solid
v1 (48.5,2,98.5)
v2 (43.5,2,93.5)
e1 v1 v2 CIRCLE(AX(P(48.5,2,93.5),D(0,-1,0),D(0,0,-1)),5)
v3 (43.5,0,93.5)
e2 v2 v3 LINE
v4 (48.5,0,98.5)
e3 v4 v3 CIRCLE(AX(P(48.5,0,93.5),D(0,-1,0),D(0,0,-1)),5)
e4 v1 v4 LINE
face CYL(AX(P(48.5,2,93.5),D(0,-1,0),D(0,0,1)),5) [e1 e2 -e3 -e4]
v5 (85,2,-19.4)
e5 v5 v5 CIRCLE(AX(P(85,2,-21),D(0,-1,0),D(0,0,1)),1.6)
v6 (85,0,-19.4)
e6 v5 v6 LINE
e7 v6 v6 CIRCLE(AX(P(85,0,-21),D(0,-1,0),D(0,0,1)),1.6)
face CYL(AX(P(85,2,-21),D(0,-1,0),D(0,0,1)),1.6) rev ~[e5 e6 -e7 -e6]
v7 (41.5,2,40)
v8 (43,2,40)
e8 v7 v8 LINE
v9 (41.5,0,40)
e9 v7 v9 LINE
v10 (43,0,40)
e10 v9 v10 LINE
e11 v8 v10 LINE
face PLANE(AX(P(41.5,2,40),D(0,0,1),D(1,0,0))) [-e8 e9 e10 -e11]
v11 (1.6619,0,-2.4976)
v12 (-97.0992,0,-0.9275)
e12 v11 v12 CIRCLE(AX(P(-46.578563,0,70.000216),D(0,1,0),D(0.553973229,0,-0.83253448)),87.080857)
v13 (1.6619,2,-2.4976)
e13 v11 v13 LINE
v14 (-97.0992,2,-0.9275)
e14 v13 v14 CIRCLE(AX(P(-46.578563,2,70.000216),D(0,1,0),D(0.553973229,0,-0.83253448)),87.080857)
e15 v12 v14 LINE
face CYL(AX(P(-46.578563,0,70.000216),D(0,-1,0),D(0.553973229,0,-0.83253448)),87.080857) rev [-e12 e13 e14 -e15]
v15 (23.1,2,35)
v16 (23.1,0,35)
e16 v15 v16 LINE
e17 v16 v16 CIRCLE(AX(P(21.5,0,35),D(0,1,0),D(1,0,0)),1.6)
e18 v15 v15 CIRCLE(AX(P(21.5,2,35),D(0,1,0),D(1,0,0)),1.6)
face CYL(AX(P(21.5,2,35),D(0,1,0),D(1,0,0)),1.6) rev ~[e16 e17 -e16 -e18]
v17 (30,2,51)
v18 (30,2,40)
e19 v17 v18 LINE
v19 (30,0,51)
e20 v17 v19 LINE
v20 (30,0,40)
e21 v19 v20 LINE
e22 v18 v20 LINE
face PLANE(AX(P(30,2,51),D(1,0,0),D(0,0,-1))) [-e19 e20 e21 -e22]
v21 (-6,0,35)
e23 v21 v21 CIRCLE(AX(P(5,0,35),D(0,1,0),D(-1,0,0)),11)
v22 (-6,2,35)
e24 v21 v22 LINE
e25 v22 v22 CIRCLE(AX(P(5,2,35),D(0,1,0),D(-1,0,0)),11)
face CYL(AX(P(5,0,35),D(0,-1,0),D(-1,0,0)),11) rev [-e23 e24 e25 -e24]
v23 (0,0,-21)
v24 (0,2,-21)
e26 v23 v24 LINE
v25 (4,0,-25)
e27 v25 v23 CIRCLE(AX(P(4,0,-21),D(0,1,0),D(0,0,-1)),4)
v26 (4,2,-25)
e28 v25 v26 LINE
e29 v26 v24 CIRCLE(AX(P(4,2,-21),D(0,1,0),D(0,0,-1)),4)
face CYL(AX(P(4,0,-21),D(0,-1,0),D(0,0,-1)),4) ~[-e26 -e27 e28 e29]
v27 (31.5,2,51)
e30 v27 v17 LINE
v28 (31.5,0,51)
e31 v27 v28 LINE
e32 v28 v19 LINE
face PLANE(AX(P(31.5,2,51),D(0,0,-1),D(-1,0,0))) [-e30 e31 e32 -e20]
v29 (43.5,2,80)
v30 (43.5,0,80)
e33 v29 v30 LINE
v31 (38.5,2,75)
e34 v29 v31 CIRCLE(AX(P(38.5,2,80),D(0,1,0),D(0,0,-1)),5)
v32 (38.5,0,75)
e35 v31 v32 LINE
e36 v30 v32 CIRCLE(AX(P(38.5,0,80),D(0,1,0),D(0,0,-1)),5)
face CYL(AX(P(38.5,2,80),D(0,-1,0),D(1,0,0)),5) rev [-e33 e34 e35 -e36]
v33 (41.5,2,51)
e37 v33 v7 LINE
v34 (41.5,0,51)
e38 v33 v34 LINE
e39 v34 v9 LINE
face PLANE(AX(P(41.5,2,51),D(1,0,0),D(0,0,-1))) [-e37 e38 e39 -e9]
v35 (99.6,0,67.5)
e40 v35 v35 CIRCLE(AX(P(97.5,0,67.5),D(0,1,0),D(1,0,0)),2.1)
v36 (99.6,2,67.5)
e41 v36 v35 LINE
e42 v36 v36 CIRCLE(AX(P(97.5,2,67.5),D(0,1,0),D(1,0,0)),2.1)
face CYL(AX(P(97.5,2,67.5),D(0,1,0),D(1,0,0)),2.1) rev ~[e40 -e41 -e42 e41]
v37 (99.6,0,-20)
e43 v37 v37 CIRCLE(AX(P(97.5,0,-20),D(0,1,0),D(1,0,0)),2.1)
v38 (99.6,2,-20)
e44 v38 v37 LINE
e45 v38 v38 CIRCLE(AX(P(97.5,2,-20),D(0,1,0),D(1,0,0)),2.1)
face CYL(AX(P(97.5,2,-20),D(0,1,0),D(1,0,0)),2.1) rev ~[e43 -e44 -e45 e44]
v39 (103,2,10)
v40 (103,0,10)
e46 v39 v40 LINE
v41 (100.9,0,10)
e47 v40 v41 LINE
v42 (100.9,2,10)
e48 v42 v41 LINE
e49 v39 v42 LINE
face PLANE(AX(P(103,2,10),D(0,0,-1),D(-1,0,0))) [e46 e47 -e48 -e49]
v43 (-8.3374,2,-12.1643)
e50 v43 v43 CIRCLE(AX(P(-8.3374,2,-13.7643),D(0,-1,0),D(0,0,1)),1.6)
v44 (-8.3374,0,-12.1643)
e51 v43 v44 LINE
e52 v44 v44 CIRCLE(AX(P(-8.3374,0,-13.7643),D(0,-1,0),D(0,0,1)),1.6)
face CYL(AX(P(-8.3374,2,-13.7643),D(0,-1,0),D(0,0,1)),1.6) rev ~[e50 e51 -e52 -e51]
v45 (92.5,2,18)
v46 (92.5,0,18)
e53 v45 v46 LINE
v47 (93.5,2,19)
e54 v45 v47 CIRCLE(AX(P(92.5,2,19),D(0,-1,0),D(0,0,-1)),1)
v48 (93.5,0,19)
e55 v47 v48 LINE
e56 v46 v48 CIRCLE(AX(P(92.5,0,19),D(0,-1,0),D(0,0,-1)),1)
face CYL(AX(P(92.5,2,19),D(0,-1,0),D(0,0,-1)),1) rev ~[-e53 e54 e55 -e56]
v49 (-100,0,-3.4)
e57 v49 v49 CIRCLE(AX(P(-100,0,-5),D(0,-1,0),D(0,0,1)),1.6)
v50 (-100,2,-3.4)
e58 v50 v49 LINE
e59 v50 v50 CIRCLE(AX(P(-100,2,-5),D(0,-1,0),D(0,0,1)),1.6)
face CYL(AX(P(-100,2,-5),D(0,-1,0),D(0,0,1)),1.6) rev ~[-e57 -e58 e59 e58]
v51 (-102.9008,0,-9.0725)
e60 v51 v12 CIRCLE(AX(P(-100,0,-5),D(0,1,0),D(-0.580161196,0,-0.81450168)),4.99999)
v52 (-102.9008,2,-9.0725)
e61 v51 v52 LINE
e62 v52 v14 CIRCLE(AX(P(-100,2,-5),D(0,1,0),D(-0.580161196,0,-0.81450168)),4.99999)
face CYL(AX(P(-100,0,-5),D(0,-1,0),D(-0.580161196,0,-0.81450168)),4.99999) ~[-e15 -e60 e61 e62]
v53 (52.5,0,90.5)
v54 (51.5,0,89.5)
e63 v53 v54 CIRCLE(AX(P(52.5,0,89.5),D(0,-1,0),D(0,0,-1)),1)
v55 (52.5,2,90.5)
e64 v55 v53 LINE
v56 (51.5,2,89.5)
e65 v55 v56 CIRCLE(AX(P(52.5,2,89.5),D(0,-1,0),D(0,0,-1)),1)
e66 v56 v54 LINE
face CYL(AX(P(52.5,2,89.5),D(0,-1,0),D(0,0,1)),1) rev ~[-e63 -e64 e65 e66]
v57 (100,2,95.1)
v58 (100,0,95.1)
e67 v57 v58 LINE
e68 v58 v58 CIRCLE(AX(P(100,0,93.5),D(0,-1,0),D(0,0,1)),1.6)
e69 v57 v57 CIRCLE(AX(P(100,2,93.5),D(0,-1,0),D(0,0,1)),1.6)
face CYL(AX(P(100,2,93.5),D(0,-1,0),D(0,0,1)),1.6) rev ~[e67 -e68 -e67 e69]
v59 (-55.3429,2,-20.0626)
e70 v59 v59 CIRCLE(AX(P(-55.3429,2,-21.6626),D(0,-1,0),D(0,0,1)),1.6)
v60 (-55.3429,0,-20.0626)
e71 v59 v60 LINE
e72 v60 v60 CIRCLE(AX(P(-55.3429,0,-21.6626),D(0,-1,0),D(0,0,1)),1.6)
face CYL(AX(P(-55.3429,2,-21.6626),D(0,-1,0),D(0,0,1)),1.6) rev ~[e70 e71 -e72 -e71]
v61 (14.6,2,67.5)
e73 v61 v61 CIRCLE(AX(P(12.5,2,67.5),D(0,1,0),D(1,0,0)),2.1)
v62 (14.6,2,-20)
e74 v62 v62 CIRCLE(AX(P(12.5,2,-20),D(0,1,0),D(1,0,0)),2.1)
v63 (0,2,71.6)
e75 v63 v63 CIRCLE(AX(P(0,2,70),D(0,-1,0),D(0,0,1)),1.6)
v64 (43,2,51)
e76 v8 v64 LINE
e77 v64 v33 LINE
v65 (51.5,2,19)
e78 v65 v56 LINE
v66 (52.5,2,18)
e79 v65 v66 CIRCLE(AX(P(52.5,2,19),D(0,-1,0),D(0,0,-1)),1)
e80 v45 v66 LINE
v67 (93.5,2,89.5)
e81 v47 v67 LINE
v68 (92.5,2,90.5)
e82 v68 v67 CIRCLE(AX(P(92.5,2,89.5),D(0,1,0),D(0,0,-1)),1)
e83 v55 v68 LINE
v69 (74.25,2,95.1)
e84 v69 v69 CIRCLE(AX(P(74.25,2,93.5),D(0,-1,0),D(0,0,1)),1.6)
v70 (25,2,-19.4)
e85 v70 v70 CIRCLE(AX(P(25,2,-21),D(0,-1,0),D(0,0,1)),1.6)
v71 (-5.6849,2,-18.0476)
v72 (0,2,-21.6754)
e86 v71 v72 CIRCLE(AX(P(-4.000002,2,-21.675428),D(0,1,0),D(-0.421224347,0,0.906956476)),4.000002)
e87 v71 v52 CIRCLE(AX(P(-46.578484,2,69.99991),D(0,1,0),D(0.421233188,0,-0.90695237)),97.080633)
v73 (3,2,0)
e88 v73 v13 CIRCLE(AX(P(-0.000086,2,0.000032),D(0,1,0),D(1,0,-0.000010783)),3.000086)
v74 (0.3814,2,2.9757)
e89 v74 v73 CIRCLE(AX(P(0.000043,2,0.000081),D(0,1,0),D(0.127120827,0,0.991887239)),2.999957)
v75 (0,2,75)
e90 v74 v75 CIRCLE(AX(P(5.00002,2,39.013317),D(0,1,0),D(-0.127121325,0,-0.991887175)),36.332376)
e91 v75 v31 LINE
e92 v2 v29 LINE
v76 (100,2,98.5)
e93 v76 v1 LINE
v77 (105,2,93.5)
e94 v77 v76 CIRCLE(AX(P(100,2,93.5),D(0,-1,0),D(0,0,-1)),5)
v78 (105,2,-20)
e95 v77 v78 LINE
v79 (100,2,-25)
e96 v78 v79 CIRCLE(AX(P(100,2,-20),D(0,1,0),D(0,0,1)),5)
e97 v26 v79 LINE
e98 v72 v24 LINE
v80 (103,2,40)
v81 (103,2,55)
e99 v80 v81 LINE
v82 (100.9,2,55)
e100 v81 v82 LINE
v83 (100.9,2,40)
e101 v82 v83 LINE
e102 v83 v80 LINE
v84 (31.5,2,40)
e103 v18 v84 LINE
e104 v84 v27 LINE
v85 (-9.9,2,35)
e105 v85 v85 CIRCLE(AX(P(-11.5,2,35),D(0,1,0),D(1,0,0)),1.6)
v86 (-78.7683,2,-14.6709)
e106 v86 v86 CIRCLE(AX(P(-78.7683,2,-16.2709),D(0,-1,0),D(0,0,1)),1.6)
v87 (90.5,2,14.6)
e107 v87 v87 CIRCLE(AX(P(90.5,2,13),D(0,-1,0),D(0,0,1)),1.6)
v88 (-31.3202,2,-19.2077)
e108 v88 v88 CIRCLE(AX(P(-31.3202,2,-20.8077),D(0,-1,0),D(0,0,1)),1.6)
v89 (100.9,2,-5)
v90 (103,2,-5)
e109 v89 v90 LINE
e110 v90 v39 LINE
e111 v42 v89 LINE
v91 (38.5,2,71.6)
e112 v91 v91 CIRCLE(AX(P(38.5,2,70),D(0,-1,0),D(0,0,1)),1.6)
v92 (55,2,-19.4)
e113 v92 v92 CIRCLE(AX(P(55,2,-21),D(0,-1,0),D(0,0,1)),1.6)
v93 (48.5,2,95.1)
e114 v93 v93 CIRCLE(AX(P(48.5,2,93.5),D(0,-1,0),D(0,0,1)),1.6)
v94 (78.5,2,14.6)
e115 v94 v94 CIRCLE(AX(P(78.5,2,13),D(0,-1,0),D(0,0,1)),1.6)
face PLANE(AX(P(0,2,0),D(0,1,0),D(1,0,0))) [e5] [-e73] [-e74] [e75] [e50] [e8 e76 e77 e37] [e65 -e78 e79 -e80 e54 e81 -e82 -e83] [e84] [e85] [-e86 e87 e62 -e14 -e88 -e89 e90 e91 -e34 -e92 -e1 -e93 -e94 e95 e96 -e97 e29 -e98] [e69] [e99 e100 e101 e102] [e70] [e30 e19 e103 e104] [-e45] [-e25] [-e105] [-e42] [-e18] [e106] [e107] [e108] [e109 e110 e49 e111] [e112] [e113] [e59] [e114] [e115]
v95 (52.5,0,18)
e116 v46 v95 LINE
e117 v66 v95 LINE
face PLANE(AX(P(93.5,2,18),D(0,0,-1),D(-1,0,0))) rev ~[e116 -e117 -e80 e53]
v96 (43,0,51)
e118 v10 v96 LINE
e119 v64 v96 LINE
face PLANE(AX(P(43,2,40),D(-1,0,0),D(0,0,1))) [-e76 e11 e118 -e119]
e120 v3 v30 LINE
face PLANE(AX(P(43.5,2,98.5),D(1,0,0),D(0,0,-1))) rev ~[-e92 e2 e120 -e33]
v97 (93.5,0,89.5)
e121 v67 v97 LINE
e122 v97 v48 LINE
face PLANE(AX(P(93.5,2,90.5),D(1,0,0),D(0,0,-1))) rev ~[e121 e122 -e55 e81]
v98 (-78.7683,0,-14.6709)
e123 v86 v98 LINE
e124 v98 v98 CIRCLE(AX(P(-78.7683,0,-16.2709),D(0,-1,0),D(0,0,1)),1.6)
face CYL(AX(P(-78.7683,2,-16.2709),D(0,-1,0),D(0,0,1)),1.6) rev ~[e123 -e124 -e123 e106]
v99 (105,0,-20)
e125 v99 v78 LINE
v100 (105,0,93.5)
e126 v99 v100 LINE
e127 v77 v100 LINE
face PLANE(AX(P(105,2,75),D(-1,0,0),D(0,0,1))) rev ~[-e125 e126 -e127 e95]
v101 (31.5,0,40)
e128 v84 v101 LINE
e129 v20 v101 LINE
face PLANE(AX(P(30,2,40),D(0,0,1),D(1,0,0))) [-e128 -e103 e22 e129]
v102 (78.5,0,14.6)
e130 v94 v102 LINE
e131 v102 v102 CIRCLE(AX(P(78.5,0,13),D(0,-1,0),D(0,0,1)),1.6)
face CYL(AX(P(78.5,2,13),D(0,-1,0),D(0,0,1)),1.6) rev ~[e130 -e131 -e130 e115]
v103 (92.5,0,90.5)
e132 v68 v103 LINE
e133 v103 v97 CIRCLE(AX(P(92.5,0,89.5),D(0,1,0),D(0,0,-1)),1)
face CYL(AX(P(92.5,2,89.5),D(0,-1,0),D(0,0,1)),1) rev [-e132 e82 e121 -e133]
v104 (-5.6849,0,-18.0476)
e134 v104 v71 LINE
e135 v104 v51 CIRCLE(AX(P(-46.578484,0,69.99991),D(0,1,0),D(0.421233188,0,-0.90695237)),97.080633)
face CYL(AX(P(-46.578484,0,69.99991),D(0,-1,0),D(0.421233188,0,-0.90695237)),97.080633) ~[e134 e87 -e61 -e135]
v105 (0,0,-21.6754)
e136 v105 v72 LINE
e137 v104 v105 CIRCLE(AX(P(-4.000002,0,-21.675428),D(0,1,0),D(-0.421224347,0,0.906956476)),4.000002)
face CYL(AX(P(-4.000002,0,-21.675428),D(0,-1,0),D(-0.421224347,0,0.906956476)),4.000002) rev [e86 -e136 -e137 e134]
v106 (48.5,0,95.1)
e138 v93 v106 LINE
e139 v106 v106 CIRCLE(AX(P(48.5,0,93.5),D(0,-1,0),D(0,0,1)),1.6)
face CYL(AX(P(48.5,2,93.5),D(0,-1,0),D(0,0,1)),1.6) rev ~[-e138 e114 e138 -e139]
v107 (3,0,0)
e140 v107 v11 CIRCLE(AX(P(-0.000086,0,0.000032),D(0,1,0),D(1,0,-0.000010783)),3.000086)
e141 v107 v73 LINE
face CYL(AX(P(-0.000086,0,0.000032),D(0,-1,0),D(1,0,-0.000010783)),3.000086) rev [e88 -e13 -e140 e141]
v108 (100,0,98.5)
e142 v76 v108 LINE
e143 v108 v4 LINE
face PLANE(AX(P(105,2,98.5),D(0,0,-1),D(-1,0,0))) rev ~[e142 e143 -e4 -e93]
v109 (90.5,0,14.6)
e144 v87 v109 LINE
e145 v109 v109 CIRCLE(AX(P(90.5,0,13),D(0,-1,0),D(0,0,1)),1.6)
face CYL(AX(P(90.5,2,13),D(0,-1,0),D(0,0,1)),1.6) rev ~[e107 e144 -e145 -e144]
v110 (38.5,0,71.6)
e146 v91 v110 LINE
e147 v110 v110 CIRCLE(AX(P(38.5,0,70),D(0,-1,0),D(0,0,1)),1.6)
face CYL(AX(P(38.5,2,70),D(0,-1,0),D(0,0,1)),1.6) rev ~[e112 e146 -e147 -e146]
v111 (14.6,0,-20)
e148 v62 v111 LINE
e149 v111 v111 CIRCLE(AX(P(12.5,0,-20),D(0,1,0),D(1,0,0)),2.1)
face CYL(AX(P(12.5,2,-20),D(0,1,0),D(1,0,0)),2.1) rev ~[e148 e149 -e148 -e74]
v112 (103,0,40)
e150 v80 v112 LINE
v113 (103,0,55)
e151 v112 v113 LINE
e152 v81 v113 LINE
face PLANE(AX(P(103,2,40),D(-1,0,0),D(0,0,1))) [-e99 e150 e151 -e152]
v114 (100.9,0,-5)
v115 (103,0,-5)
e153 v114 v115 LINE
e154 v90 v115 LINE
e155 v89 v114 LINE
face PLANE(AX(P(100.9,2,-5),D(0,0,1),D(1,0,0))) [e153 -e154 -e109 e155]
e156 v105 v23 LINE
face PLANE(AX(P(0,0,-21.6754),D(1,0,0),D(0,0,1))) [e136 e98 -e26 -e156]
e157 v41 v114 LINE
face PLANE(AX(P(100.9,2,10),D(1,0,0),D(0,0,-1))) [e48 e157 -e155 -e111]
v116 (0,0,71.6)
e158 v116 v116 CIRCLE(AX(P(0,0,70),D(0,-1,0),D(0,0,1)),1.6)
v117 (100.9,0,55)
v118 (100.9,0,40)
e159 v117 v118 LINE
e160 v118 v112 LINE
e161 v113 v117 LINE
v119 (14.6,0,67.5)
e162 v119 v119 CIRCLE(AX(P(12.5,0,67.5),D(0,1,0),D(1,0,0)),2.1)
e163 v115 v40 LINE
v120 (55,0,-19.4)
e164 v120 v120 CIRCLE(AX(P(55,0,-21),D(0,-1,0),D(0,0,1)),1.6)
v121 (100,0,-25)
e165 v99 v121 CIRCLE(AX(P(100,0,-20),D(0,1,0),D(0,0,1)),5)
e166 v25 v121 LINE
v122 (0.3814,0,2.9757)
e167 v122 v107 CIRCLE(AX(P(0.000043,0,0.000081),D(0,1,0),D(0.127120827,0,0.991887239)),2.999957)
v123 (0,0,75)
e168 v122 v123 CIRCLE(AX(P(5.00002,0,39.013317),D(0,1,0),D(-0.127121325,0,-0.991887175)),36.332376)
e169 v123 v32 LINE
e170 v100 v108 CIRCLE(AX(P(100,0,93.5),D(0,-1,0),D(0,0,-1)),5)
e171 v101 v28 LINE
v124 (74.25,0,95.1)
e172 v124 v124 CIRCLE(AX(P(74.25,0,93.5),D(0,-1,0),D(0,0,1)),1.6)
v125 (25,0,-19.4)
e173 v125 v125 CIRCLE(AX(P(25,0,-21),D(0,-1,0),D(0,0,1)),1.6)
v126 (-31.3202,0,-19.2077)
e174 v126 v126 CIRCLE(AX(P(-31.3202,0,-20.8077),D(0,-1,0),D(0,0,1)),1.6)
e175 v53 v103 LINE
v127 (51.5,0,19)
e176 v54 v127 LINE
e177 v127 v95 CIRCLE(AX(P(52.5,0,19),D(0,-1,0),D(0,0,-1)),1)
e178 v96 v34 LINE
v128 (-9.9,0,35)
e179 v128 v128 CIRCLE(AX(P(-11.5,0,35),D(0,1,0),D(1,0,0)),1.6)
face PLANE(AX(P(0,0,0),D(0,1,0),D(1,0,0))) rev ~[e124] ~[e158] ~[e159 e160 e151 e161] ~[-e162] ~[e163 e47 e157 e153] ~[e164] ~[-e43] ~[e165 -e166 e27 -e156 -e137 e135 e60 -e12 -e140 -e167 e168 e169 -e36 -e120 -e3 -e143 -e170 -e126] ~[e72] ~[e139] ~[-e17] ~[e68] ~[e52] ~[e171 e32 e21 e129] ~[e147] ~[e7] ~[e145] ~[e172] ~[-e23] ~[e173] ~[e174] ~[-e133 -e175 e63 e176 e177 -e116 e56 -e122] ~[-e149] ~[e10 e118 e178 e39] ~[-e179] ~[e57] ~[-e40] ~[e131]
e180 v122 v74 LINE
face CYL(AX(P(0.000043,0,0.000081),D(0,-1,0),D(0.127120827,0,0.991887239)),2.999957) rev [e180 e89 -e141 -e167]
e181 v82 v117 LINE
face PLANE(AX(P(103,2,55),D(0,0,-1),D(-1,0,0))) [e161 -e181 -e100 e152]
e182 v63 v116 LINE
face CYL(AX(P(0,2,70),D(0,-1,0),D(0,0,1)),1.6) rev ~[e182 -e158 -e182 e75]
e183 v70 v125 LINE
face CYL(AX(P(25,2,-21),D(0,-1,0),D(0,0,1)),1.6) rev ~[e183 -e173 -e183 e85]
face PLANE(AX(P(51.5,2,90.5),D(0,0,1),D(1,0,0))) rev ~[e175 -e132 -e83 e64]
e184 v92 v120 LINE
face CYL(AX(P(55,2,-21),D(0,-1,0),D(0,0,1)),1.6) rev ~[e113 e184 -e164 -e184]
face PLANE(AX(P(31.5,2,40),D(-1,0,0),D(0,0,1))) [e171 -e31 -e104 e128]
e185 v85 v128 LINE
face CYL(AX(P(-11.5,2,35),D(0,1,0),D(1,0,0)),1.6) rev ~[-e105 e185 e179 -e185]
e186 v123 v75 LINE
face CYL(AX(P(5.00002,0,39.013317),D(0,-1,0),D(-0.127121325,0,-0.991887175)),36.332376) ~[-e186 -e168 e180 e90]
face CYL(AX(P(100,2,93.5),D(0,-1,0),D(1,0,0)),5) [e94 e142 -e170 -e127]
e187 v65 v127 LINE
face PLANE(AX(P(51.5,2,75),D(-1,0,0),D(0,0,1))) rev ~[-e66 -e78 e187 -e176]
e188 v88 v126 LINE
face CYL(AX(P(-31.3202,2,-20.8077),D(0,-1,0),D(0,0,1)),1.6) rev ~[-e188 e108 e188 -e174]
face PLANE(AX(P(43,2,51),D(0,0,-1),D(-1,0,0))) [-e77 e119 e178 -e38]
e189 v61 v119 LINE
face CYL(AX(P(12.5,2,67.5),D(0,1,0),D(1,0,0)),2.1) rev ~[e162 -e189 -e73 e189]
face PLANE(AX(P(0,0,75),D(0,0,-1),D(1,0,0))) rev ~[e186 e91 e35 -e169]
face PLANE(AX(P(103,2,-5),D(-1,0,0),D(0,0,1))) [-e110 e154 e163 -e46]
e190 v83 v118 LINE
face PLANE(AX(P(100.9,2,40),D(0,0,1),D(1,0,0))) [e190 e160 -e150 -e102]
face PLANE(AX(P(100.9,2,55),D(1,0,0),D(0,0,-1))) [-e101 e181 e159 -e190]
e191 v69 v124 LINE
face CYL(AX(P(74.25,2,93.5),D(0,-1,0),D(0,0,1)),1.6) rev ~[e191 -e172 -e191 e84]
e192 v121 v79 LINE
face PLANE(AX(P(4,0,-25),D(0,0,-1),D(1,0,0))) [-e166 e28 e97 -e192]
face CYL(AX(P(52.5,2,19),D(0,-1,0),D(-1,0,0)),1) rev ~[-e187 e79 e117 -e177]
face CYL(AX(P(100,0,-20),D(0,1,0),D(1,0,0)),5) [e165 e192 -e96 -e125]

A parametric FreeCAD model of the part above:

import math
import FreeCAD as App
import Part
import Sketcher
from FreeCAD import Vector


def edges_at(feature, points):
    """Names of the edges that pass closest to the given points."""
    edges = feature.Shape.Edges
    near = lambda p: min(range(len(edges)), key=lambda i: edges[i].distToShape(Part.Vertex(*p))[0])
    return sorted({f"Edge{near(p) + 1}" for p in points})

doc = App.newDocument("Part")
params = doc.addObject("Spreadsheet::Sheet", "Params")
for row, (alias, value) in enumerate([
    ("sketch1_diameter", "22 mm"),
    ("sketch1_radius", "3 mm"),
    ("sketch1_radius2", "4 mm"),
    ("sketch1_radius3", "5 mm"),
    ("sketch1_width", "105 mm"),
    ("pad1_length", "2 mm"),
    ("sketch2_diameter", "4.2 mm"),
    ("pocket1_length", "2 mm"),
    ("sketch3_height", "15 mm"),
    ("sketch3_width", "2.1 mm"),
    ("pocket2_length", "2 mm"),
    ("sketch4_diameter", "3.2 mm"),
    ("fillet_radius", "5 mm"),
    ("sketch5_width", "8 mm"),
    ("sketch5_width2", "42 mm"),
    ("sketch5_height", "15.5 mm"),
    ("sketch5_width3", "61.5 mm"),
    ("pad2_length", "2 mm"),
    ("sketch6_height", "57 mm"),
    ("sketch6_width", "42 mm"),
    ("pocket4_length", "2 mm"),
    ("fillet2_radius", "5 mm"),
    ("fillet3_radius", "1 mm"),
    ("sketch7_diameter", "3.2 mm"),
    ("hole_diameter", "3.2 mm"),
    ("sketch8_diameter", "3.2 mm"),
    ("hole2_diameter", "3.2 mm"),
    ("sketch9_height", "11 mm"),
    ("sketch9_width", "1.5 mm"),
], start=1):
    params.set(f"A{row}", alias)
    params.set(f"B{row}", "=" + value)
    params.setAlias(f"B{row}", alias)

body = doc.addObject("PartDesign::Body", "Body")

# Sketch on XZ plane
sketch1 = body.newObject("Sketcher::SketchObject", "Sketch")
sketch1.AttachmentSupport = (doc.getObject("XZ_Plane"), [""])
sketch1.MapMode = "FlatFace"
sketch1.addGeometry(Part.ArcOfCircle(Part.Circle(Vector(0, 0, 0), Vector(0, 0, 1), 3), math.radians(0), math.radians(83)), False)
sketch1.addGeometry(Part.ArcOfCircle(Part.Circle(Vector(5, 39, 0), Vector(0, 0, 1), 36.3), math.radians(98), math.radians(263)), False)
sketch1.addGeometry(Part.LineSegment(Vector(0, 75, 0), Vector(105, 75, 0)), False)
sketch1.addGeometry(Part.LineSegment(Vector(105, 75, 0), Vector(105, -25, 0)), False)
sketch1.addGeometry(Part.LineSegment(Vector(105, -25, 0), Vector(4, -25, 0)), False)
sketch1.addGeometry(Part.ArcOfCircle(Part.Circle(Vector(4, -21, 0), Vector(0, 0, 1), 4), math.radians(180), math.radians(270)), False)
sketch1.addGeometry(Part.LineSegment(Vector(0, -21, 0), Vector(0, -21.7, 0)), False)
sketch1.addGeometry(Part.ArcOfCircle(Part.Circle(Vector(-4, -21.7, 0), Vector(0, 0, 1), 4), math.radians(0), math.radians(115)), False)
sketch1.addGeometry(Part.ArcOfCircle(Part.Circle(Vector(-46.6, 70, 0), Vector(0, 0, 1), 97.1), math.radians(-125), math.radians(-65)), False)
sketch1.addGeometry(Part.ArcOfCircle(Part.Circle(Vector(-100, -5, 0), Vector(0, 0, 1), 5), math.radians(55), math.radians(235)), False)
sketch1.addGeometry(Part.ArcOfCircle(Part.Circle(Vector(-46.6, 70, 0), Vector(0, 0, 1), 87.1), math.radians(-125), math.radians(-56)), False)
sketch1.addGeometry(Part.ArcOfCircle(Part.Circle(Vector(0, 0, 0), Vector(0, 0, 1), 3), math.radians(-56), math.radians(0)), False)
sketch1.addGeometry(Part.Circle(Vector(5, 35, 0), Vector(0, 0, 1), 11), False)
sketch1.addConstraint(Sketcher.Constraint("Tangent", 0, 2, 1, 2))
sketch1.addConstraint(Sketcher.Constraint("Coincident", 1, 1, 2, 1))
sketch1.addConstraint(Sketcher.Constraint("Coincident", 2, 2, 3, 1))
sketch1.addConstraint(Sketcher.Constraint("Coincident", 3, 2, 4, 1))
sketch1.addConstraint(Sketcher.Constraint("Tangent", 4, 2, 5, 2))
sketch1.addConstraint(Sketcher.Constraint("Tangent", 5, 1, 6, 1))
sketch1.addConstraint(Sketcher.Constraint("Tangent", 6, 2, 7, 1))
sketch1.addConstraint(Sketcher.Constraint("Tangent", 7, 2, 8, 2))
sketch1.addConstraint(Sketcher.Constraint("Tangent", 8, 1, 9, 2))
sketch1.addConstraint(Sketcher.Constraint("Tangent", 9, 1, 10, 1))
sketch1.addConstraint(Sketcher.Constraint("Tangent", 10, 2, 11, 1))
sketch1.addConstraint(Sketcher.Constraint("Tangent", 11, 2, 0, 1))
sketch1.addConstraint(Sketcher.Constraint("Horizontal", 2))
sketch1.addConstraint(Sketcher.Constraint("Vertical", 3))
sketch1.addConstraint(Sketcher.Constraint("Horizontal", 4))
sketch1.addConstraint(Sketcher.Constraint("Vertical", 6))
sketch1.addConstraint(Sketcher.Constraint("Coincident", 0, 3, -1, 1))
sketch1.addConstraint(Sketcher.Constraint("Coincident", 10, 3, 8, 3))
sketch1.addConstraint(Sketcher.Constraint("Equal", 5, 7))
sketch1.addConstraint(Sketcher.Constraint("Equal", 0, 11))
sketch1.addConstraint(Sketcher.Constraint("PointOnObject", 1, 1, -2))
sketch1.addConstraint(Sketcher.Constraint("PointOnObject", 5, 1, -2))
sketch1.addConstraint(Sketcher.Constraint("PointOnObject", 11, 2, -1))
sketch1.addConstraint(Sketcher.Constraint("Vertical", 1, 3, 12, 3))
sketch1.addConstraint(Sketcher.Constraint("Diameter", 12, 22.0))
sketch1.addConstraint(Sketcher.Constraint("Radius", 0, 3.0))
sketch1.addConstraint(Sketcher.Constraint("Radius", 5, 4.0))
sketch1.addConstraint(Sketcher.Constraint("Radius", 9, 5.0))
sketch1.addConstraint(Sketcher.Constraint("DistanceX", 2, 1, 2, 2, 105.0))
sketch1.addConstraint(Sketcher.Constraint("DistanceY", 3, 2, 3, 1, 100.0))
sketch1.addConstraint(Sketcher.Constraint("DistanceX", -1, 1, 1, 3, 5.0))
sketch1.addConstraint(Sketcher.Constraint("DistanceY", -1, 1, 8, 3, 70.0))
sketch1.addConstraint(Sketcher.Constraint("DistanceX", 9, 3, -1, 1, 100.0))
sketch1.addConstraint(Sketcher.Constraint("DistanceY", 9, 3, -1, 1, 5.0))
sketch1.addConstraint(Sketcher.Constraint("DistanceY", -1, 1, 12, 3, 35.0))
sketch1.addConstraint(Sketcher.Constraint("DistanceY", -1, 1, 1, 1, 75.0))
sketch1.setExpression("Constraints[24]", "Params.sketch1_diameter")
sketch1.setExpression("Constraints[25]", "Params.sketch1_radius")
sketch1.setExpression("Constraints[26]", "Params.sketch1_radius2")
sketch1.setExpression("Constraints[27]", "Params.sketch1_radius3")
sketch1.setExpression("Constraints[28]", "Params.sketch1_width")
pad1 = body.newObject("PartDesign::Pad", "Pad")
pad1.Profile = sketch1
pad1.setExpression("Length", "Params.pad1_length")
pad1.Reversed = True

# Sketch on XZ plane
sketch2 = body.newObject("Sketcher::SketchObject", "Sketch001")
sketch2.AttachmentSupport = (doc.getObject("XZ_Plane"), [""])
sketch2.MapMode = "FlatFace"
sketch2.AttachmentOffset = App.Placement(Vector(0, 0, -2), App.Rotation())
sketch2.addGeometry(Part.Circle(Vector(12.5, -20, 0), Vector(0, 0, 1), 2.1), False)
sketch2.addGeometry(Part.Circle(Vector(97.5, -20, 0), Vector(0, 0, 1), 2.1), False)
sketch2.addGeometry(Part.Circle(Vector(12.5, 67.5, 0), Vector(0, 0, 1), 2.1), False)
sketch2.addGeometry(Part.Circle(Vector(97.5, 67.5, 0), Vector(0, 0, 1), 2.1), False)
sketch2.addConstraint(Sketcher.Constraint("Equal", 0, 1))
sketch2.addConstraint(Sketcher.Constraint("Equal", 1, 2))
sketch2.addConstraint(Sketcher.Constraint("Equal", 2, 3))
sketch2.addConstraint(Sketcher.Constraint("Horizontal", 0, 3, 1, 3))
sketch2.addConstraint(Sketcher.Constraint("Horizontal", 2, 3, 3, 3))
sketch2.addConstraint(Sketcher.Constraint("Vertical", 0, 3, 2, 3))
sketch2.addConstraint(Sketcher.Constraint("Vertical", 1, 3, 3, 3))
sketch2.addConstraint(Sketcher.Constraint("Diameter", 0, 4.2))
sketch2.addConstraint(Sketcher.Constraint("DistanceX", 0, 3, 1, 3, 85.0))
sketch2.addConstraint(Sketcher.Constraint("DistanceY", 0, 3, 2, 3, 87.5))
sketch2.addConstraint(Sketcher.Constraint("DistanceY", 0, 3, -1, 1, 20.0))
sketch2.addConstraint(Sketcher.Constraint("DistanceX", -1, 1, 0, 3, 12.5))
sketch2.setExpression("Constraints[7]", "Params.sketch2_diameter")
pocket1 = body.newObject("PartDesign::Pocket", "Pocket")
pocket1.Profile = sketch2
pocket1.setExpression("Length", "Params.pocket1_length")
pocket1.Reversed = True

# Sketch on XZ plane
sketch3 = body.newObject("Sketcher::SketchObject", "Sketch002")
sketch3.AttachmentSupport = (doc.getObject("XZ_Plane"), [""])
sketch3.MapMode = "FlatFace"
sketch3.AttachmentOffset = App.Placement(Vector(0, 0, -2), App.Rotation())
sketch3.addGeometry(Part.LineSegment(Vector(100.9, 55, 0), Vector(103, 55, 0)), False)
sketch3.addGeometry(Part.LineSegment(Vector(103, 55, 0), Vector(103, 40, 0)), False)
sketch3.addGeometry(Part.LineSegment(Vector(103, 40, 0), Vector(100.9, 40, 0)), False)
sketch3.addGeometry(Part.LineSegment(Vector(100.9, 40, 0), Vector(100.9, 55, 0)), False)
sketch3.addGeometry(Part.LineSegment(Vector(100.9, 10, 0), Vector(103, 10, 0)), False)
sketch3.addGeometry(Part.LineSegment(Vector(103, 10, 0), Vector(103, -5, 0)), False)
sketch3.addGeometry(Part.LineSegment(Vector(103, -5, 0), Vector(100.9, -5, 0)), False)
sketch3.addGeometry(Part.LineSegment(Vector(100.9, -5, 0), Vector(100.9, 10, 0)), False)
sketch3.addConstraint(Sketcher.Constraint("Coincident", 0, 2, 1, 1))
sketch3.addConstraint(Sketcher.Constraint("Coincident", 1, 2, 2, 1))
sketch3.addConstraint(Sketcher.Constraint("Coincident", 2, 2, 3, 1))
sketch3.addConstraint(Sketcher.Constraint("Coincident", 3, 2, 0, 1))
sketch3.addConstraint(Sketcher.Constraint("Coincident", 4, 2, 5, 1))
sketch3.addConstraint(Sketcher.Constraint("Coincident", 5, 2, 6, 1))
sketch3.addConstraint(Sketcher.Constraint("Coincident", 6, 2, 7, 1))
sketch3.addConstraint(Sketcher.Constraint("Coincident", 7, 2, 4, 1))
sketch3.addConstraint(Sketcher.Constraint("Horizontal", 0))
sketch3.addConstraint(Sketcher.Constraint("Vertical", 1))
sketch3.addConstraint(Sketcher.Constraint("Horizontal", 2))
sketch3.addConstraint(Sketcher.Constraint("Vertical", 3))
sketch3.addConstraint(Sketcher.Constraint("Horizontal", 4))
sketch3.addConstraint(Sketcher.Constraint("Vertical", 5))
sketch3.addConstraint(Sketcher.Constraint("Horizontal", 6))
sketch3.addConstraint(Sketcher.Constraint("Vertical", 7))
sketch3.addConstraint(Sketcher.Constraint("Vertical", 1, 2, 4, 2))
sketch3.addConstraint(Sketcher.Constraint("Vertical", 3, 2, 6, 2))
sketch3.addConstraint(Sketcher.Constraint("Equal", 3, 5))
sketch3.addConstraint(Sketcher.Constraint("DistanceY", 1, 2, 1, 1, 15.0))
sketch3.addConstraint(Sketcher.Constraint("DistanceX", 0, 1, 0, 2, 2.1))
sketch3.addConstraint(Sketcher.Constraint("DistanceY", 4, 2, 1, 2, 30.0))
sketch3.addConstraint(Sketcher.Constraint("DistanceX", -1, 1, 0, 2, 103.0))
sketch3.addConstraint(Sketcher.Constraint("DistanceY", -1, 1, 0, 2, 55.0))
sketch3.setExpression("Constraints[19]", "Params.sketch3_height")
sketch3.setExpression("Constraints[20]", "Params.sketch3_width")
pocket2 = body.newObject("PartDesign::Pocket", "Pocket001")
pocket2.Profile = sketch3
pocket2.setExpression("Length", "Params.pocket2_length")
pocket2.Reversed = True

# Sketch on XZ plane
sketch4 = body.newObject("Sketcher::SketchObject", "Sketch003")
sketch4.AttachmentSupport = (doc.getObject("XZ_Plane"), [""])
sketch4.MapMode = "FlatFace"
sketch4.AttachmentOffset = App.Placement(Vector(0, 0, -2), App.Rotation())
sketch4.addGeometry(Part.Circle(Vector(-11.5, 35, 0), Vector(0, 0, 1), 1.6), False)
sketch4.addGeometry(Part.Circle(Vector(21.5, 35, 0), Vector(0, 0, 1), 1.6), False)
sketch4.addConstraint(Sketcher.Constraint("Equal", 0, 1))
sketch4.addConstraint(Sketcher.Constraint("Horizontal", 0, 3, 1, 3))
sketch4.addConstraint(Sketcher.Constraint("Diameter", 0, 3.2))
sketch4.addConstraint(Sketcher.Constraint("DistanceX", 0, 3, 1, 3, 33.0))
sketch4.addConstraint(Sketcher.Constraint("DistanceY", -1, 1, 0, 3, 35.0))
sketch4.addConstraint(Sketcher.Constraint("DistanceX", 0, 3, -1, 1, 11.5))
sketch4.setExpression("Constraints[2]", "Params.sketch4_diameter")
pocket3 = body.newObject("PartDesign::Pocket", "Pocket002")
pocket3.Profile = sketch4
pocket3.Type = "ThroughAll"
pocket3.Reversed = True
doc.recompute()

fillet = body.newObject("PartDesign::Fillet", "Fillet")
fillet.Base = (pocket3, edges_at(pocket3, [(105, 1, -25)]))
fillet.setExpression("Radius", "Params.fillet_radius")

# Sketch on XZ plane
sketch5 = body.newObject("Sketcher::SketchObject", "Sketch004")
sketch5.AttachmentSupport = (doc.getObject("XZ_Plane"), [""])
sketch5.MapMode = "FlatFace"
sketch5.AttachmentOffset = App.Placement(Vector(0, 0, -2), App.Rotation())
sketch5.addGeometry(Part.LineSegment(Vector(52, 75, 0), Vector(44, 75, 0)), False)
sketch5.addGeometry(Part.LineSegment(Vector(44, 75, 0), Vector(44, 98, 0)), False)
sketch5.addGeometry(Part.LineSegment(Vector(44, 98, 0), Vector(105, 98, 0)), False)
sketch5.addGeometry(Part.LineSegment(Vector(105, 98, 0), Vector(105, 75, 0)), False)
sketch5.addGeometry(Part.LineSegment(Vector(105, 75, 0), Vector(94, 75, 0)), False)
sketch5.addGeometry(Part.LineSegment(Vector(94, 75, 0), Vector(94, 90, 0)), False)
sketch5.addGeometry(Part.LineSegment(Vector(94, 90, 0), Vector(52, 90, 0)), False)
sketch5.addGeometry(Part.LineSegment(Vector(52, 90, 0), Vector(52, 75, 0)), False)
sketch5.addConstraint(Sketcher.Constraint("Coincident", 0, 2, 1, 1))
sketch5.addConstraint(Sketcher.Constraint("Coincident", 1, 2, 2, 1))
sketch5.addConstraint(Sketcher.Constraint("Coincident", 2, 2, 3, 1))
sketch5.addConstraint(Sketcher.Constraint("Coincident", 3, 2, 4, 1))
sketch5.addConstraint(Sketcher.Constraint("Coincident", 4, 2, 5, 1))
sketch5.addConstraint(Sketcher.Constraint("Coincident", 5, 2, 6, 1))
sketch5.addConstraint(Sketcher.Constraint("Coincident", 6, 2, 7, 1))
sketch5.addConstraint(Sketcher.Constraint("Coincident", 7, 2, 0, 1))
sketch5.addConstraint(Sketcher.Constraint("Horizontal", 0))
sketch5.addConstraint(Sketcher.Constraint("Vertical", 1))
sketch5.addConstraint(Sketcher.Constraint("Horizontal", 2))
sketch5.addConstraint(Sketcher.Constraint("Vertical", 3))
sketch5.addConstraint(Sketcher.Constraint("Horizontal", 4))
sketch5.addConstraint(Sketcher.Constraint("Vertical", 5))
sketch5.addConstraint(Sketcher.Constraint("Horizontal", 6))
sketch5.addConstraint(Sketcher.Constraint("Vertical", 7))
sketch5.addConstraint(Sketcher.Constraint("Horizontal", 0, 2, 3, 2))
sketch5.addConstraint(Sketcher.Constraint("DistanceX", 0, 2, 0, 1, 8.0))
sketch5.addConstraint(Sketcher.Constraint("DistanceX", 6, 2, 6, 1, 42.0))
sketch5.addConstraint(Sketcher.Constraint("DistanceY", 5, 1, 5, 2, 15.5))
sketch5.addConstraint(Sketcher.Constraint("DistanceY", 5, 2, 2, 2, 8.0))
sketch5.addConstraint(Sketcher.Constraint("DistanceX", -1, 1, 6, 2, 51.5))
sketch5.addConstraint(Sketcher.Constraint("DistanceX", 2, 1, 2, 2, 61.5))
sketch5.addConstraint(Sketcher.Constraint("DistanceY", -1, 1, 0, 2, 75.0))
sketch5.setExpression("Constraints[17]", "Params.sketch5_width")
sketch5.setExpression("Constraints[18]", "Params.sketch5_width2")
sketch5.setExpression("Constraints[19]", "Params.sketch5_height")
sketch5.setExpression("Constraints[22]", "Params.sketch5_width3")
pad2 = body.newObject("PartDesign::Pad", "Pad001")
pad2.Profile = sketch5
pad2.setExpression("Length", "Params.pad2_length")

# Sketch on XZ plane
sketch6 = body.newObject("Sketcher::SketchObject", "Sketch005")
sketch6.AttachmentSupport = (doc.getObject("XZ_Plane"), [""])
sketch6.MapMode = "FlatFace"
sketch6.AttachmentOffset = App.Placement(Vector(0, 0, -2), App.Rotation())
sketch6.addGeometry(Part.LineSegment(Vector(52, 75, 0), Vector(94, 75, 0)), False)
sketch6.addGeometry(Part.LineSegment(Vector(94, 75, 0), Vector(94, 18, 0)), False)
sketch6.addGeometry(Part.LineSegment(Vector(94, 18, 0), Vector(52, 18, 0)), False)
sketch6.addGeometry(Part.LineSegment(Vector(52, 18, 0), Vector(52, 75, 0)), False)
sketch6.addConstraint(Sketcher.Constraint("Coincident", 0, 2, 1, 1))
sketch6.addConstraint(Sketcher.Constraint("Coincident", 1, 2, 2, 1))
sketch6.addConstraint(Sketcher.Constraint("Coincident", 2, 2, 3, 1))
sketch6.addConstraint(Sketcher.Constraint("Coincident", 3, 2, 0, 1))
sketch6.addConstraint(Sketcher.Constraint("Horizontal", 0))
sketch6.addConstraint(Sketcher.Constraint("Vertical", 1))
sketch6.addConstraint(Sketcher.Constraint("Horizontal", 2))
sketch6.addConstraint(Sketcher.Constraint("Vertical", 3))
sketch6.addConstraint(Sketcher.Constraint("DistanceY", 1, 2, 1, 1, 57.0))
sketch6.addConstraint(Sketcher.Constraint("DistanceX", 0, 1, 0, 2, 42.0))
sketch6.addConstraint(Sketcher.Constraint("DistanceY", -1, 1, 0, 2, 75.0))
sketch6.addConstraint(Sketcher.Constraint("DistanceX", -1, 1, 0, 2, 93.5))
sketch6.setExpression("Constraints[8]", "Params.sketch6_height")
sketch6.setExpression("Constraints[9]", "Params.sketch6_width")
pocket4 = body.newObject("PartDesign::Pocket", "Pocket003")
pocket4.Profile = sketch6
pocket4.setExpression("Length", "Params.pocket4_length")
pocket4.Reversed = True
doc.recompute()

fillet2 = body.newObject("PartDesign::Fillet", "Fillet001")
fillet2.Base = (pocket4, edges_at(pocket4, [(105, 1, 98.5), (43.5, 1, 98.5), (43.5, 1, 75)]))
fillet2.setExpression("Radius", "Params.fillet2_radius")
doc.recompute()

fillet3 = body.newObject("PartDesign::Fillet", "Fillet002")
fillet3.Base = (fillet2, edges_at(fillet2, [
    (51.5, 1, 18),
    (93.5, 1, 18),
    (93.5, 1, 90.5),
    (51.5, 1, 90.5),
]))
fillet3.setExpression("Radius", "Params.fillet3_radius")

# Sketch on XZ plane
sketch7 = body.newObject("Sketcher::SketchObject", "Sketch006")
sketch7.AttachmentSupport = (doc.getObject("XZ_Plane"), [""])
sketch7.MapMode = "FlatFace"
sketch7.AttachmentOffset = App.Placement(Vector(0, 0, -2), App.Rotation())
sketch7.addGeometry(Part.Circle(Vector(78.5, 13, 0), Vector(0, 0, 1), 1.6), False)
sketch7.addGeometry(Part.Circle(Vector(90.5, 13, 0), Vector(0, 0, 1), 1.6), False)
sketch7.addConstraint(Sketcher.Constraint("Equal", 0, 1))
sketch7.addConstraint(Sketcher.Constraint("Horizontal", 0, 3, 1, 3))
sketch7.addConstraint(Sketcher.Constraint("Diameter", 0, 3.2))
sketch7.addConstraint(Sketcher.Constraint("DistanceY", -1, 1, 0, 3, 13.0))
sketch7.addConstraint(Sketcher.Constraint("DistanceX", 0, 3, 1, 3, 12.0))
sketch7.addConstraint(Sketcher.Constraint("DistanceX", -1, 1, 0, 3, 78.5))
sketch7.setExpression("Constraints[2]", "Params.sketch7_diameter")
doc.recompute()
hole = body.newObject("PartDesign::Hole", "Hole")
hole.Profile = sketch7
hole.ThreadType = "None"
hole.setExpression("Diameter", "Params.hole_diameter")
hole.DepthType = "ThroughAll"
hole.Reversed = True

# Sketch on XZ plane
sketch8 = body.newObject("Sketcher::SketchObject", "Sketch007")
sketch8.AttachmentSupport = (doc.getObject("XZ_Plane"), [""])
sketch8.MapMode = "FlatFace"
sketch8.AttachmentOffset = App.Placement(Vector(0, 0, -2), App.Rotation())
sketch8.addGeometry(Part.Circle(Vector(-100, -5, 0), Vector(0, 0, 1), 1.6), False)
sketch8.addGeometry(Part.Circle(Vector(-78.8, -16.3, 0), Vector(0, 0, 1), 1.6), False)
sketch8.addGeometry(Part.Circle(Vector(-55.3, -21.7, 0), Vector(0, 0, 1), 1.6), False)
sketch8.addGeometry(Part.Circle(Vector(-31.3, -20.8, 0), Vector(0, 0, 1), 1.6), False)
sketch8.addGeometry(Part.Circle(Vector(-8.3, -13.8, 0), Vector(0, 0, 1), 1.6), False)
sketch8.addGeometry(Part.Circle(Vector(48.5, 93.5, 0), Vector(0, 0, 1), 1.6), False)
sketch8.addGeometry(Part.Circle(Vector(100, 93.5, 0), Vector(0, 0, 1), 1.6), False)
sketch8.addGeometry(Part.Circle(Vector(25, -21, 0), Vector(0, 0, 1), 1.6), False)
sketch8.addGeometry(Part.Circle(Vector(85, -21, 0), Vector(0, 0, 1), 1.6), False)
sketch8.addGeometry(Part.Circle(Vector(55, -21, 0), Vector(0, 0, 1), 1.6), False)
sketch8.addGeometry(Part.Circle(Vector(74.2, 93.5, 0), Vector(0, 0, 1), 1.6), False)
sketch8.addGeometry(Part.Circle(Vector(0, 70, 0), Vector(0, 0, 1), 1.6), False)
sketch8.addGeometry(Part.Circle(Vector(38.5, 70, 0), Vector(0, 0, 1), 1.6), False)
sketch8.addConstraint(Sketcher.Constraint("Equal", 0, 1))
sketch8.addConstraint(Sketcher.Constraint("Equal", 1, 2))
sketch8.addConstraint(Sketcher.Constraint("Equal", 2, 3))
sketch8.addConstraint(Sketcher.Constraint("Equal", 3, 4))
sketch8.addConstraint(Sketcher.Constraint("Equal", 4, 5))
sketch8.addConstraint(Sketcher.Constraint("Equal", 5, 6))
sketch8.addConstraint(Sketcher.Constraint("Equal", 6, 7))
sketch8.addConstraint(Sketcher.Constraint("Equal", 7, 8))
sketch8.addConstraint(Sketcher.Constraint("Equal", 8, 9))
sketch8.addConstraint(Sketcher.Constraint("Equal", 9, 10))
sketch8.addConstraint(Sketcher.Constraint("Equal", 10, 11))
sketch8.addConstraint(Sketcher.Constraint("Equal", 11, 12))
sketch8.addConstraint(Sketcher.Constraint("PointOnObject", 11, 3, -2))
sketch8.addConstraint(Sketcher.Constraint("Horizontal", 5, 3, 6, 3))
sketch8.addConstraint(Sketcher.Constraint("Horizontal", 7, 3, 8, 3))
sketch8.addConstraint(Sketcher.Constraint("Horizontal", 8, 3, 9, 3))
sketch8.addConstraint(Sketcher.Constraint("Horizontal", 6, 3, 10, 3))
sketch8.addConstraint(Sketcher.Constraint("Horizontal", 11, 3, 12, 3))
sketch8.addConstraint(Sketcher.Constraint("Diameter", 0, 3.2))
sketch8.addConstraint(Sketcher.Constraint("DistanceX", 0, 3, -1, 1, 100.0))
sketch8.addConstraint(Sketcher.Constraint("DistanceY", 0, 3, -1, 1, 5.0))
sketch8.addConstraint(Sketcher.Constraint("DistanceX", -1, 1, 6, 3, 100.0))
sketch8.addConstraint(Sketcher.Constraint("DistanceX", -1, 1, 7, 3, 25.0))
sketch8.addConstraint(Sketcher.Constraint("DistanceY", 7, 3, -1, 1, 21.0))
sketch8.addConstraint(Sketcher.Constraint("DistanceX", -1, 1, 8, 3, 85.0))
sketch8.addConstraint(Sketcher.Constraint("DistanceX", -1, 1, 9, 3, 55.0))
sketch8.addConstraint(Sketcher.Constraint("DistanceY", -1, 1, 11, 3, 70.0))
sketch8.addConstraint(Sketcher.Constraint("DistanceX", 12, 3, 5, 3, 10.0))
sketch8.addConstraint(Sketcher.Constraint("DistanceX", -1, 1, 5, 3, 48.5))
sketch8.addConstraint(Sketcher.Constraint("DistanceY", -1, 1, 5, 3, 93.5))
sketch8.addConstraint(Sketcher.Constraint("DistanceX", -1, 1, 10, 3, 74.25))
sketch8.addConstraint(Sketcher.Constraint("DistanceY", 1, 3, -1, 1, 16.271))
sketch8.addConstraint(Sketcher.Constraint("DistanceX", 2, 3, -1, 1, 55.343))
sketch8.addConstraint(Sketcher.Constraint("DistanceY", 2, 3, 3, 3, 0.855))
sketch8.addConstraint(Sketcher.Constraint("DistanceX", 1, 3, 3, 3, 47.448))
sketch8.addConstraint(Sketcher.Constraint("DistanceX", 1, 3, 4, 3, 70.431))
sketch8.addConstraint(Sketcher.Constraint("DistanceX", 1, 3, -1, 1, 78.7683))
sketch8.addConstraint(Sketcher.Constraint("DistanceY", 2, 3, -1, 1, 21.6626))
sketch8.addConstraint(Sketcher.Constraint("DistanceY", 4, 3, -1, 1, 13.7643))
sketch8.setExpression("Constraints[18]", "Params.sketch8_diameter")
doc.recompute()
hole2 = body.newObject("PartDesign::Hole", "Hole001")
hole2.Profile = sketch8
hole2.ThreadType = "None"
hole2.setExpression("Diameter", "Params.hole2_diameter")
hole2.DepthType = "ThroughAll"
hole2.Reversed = True

# Sketch on XZ plane
sketch9 = body.newObject("Sketcher::SketchObject", "Sketch008")
sketch9.AttachmentSupport = (doc.getObject("XZ_Plane"), [""])
sketch9.MapMode = "FlatFace"
sketch9.AttachmentOffset = App.Placement(Vector(0, 0, -2), App.Rotation())
sketch9.addGeometry(Part.LineSegment(Vector(31.5, 40, 0), Vector(30, 40, 0)), False)
sketch9.addGeometry(Part.LineSegment(Vector(30, 40, 0), Vector(30, 51, 0)), False)
sketch9.addGeometry(Part.LineSegment(Vector(30, 51, 0), Vector(31.5, 51, 0)), False)
sketch9.addGeometry(Part.LineSegment(Vector(31.5, 51, 0), Vector(31.5, 40, 0)), False)
sketch9.addGeometry(Part.LineSegment(Vector(43, 40, 0), Vector(41.5, 40, 0)), False)
sketch9.addGeometry(Part.LineSegment(Vector(41.5, 40, 0), Vector(41.5, 51, 0)), False)
sketch9.addGeometry(Part.LineSegment(Vector(41.5, 51, 0), Vector(43, 51, 0)), False)
sketch9.addGeometry(Part.LineSegment(Vector(43, 51, 0), Vector(43, 40, 0)), False)
sketch9.addConstraint(Sketcher.Constraint("Coincident", 0, 2, 1, 1))
sketch9.addConstraint(Sketcher.Constraint("Coincident", 1, 2, 2, 1))
sketch9.addConstraint(Sketcher.Constraint("Coincident", 2, 2, 3, 1))
sketch9.addConstraint(Sketcher.Constraint("Coincident", 3, 2, 0, 1))
sketch9.addConstraint(Sketcher.Constraint("Coincident", 4, 2, 5, 1))
sketch9.addConstraint(Sketcher.Constraint("Coincident", 5, 2, 6, 1))
sketch9.addConstraint(Sketcher.Constraint("Coincident", 6, 2, 7, 1))
sketch9.addConstraint(Sketcher.Constraint("Coincident", 7, 2, 4, 1))
sketch9.addConstraint(Sketcher.Constraint("Horizontal", 0))
sketch9.addConstraint(Sketcher.Constraint("Vertical", 1))
sketch9.addConstraint(Sketcher.Constraint("Horizontal", 2))
sketch9.addConstraint(Sketcher.Constraint("Vertical", 3))
sketch9.addConstraint(Sketcher.Constraint("Horizontal", 4))
sketch9.addConstraint(Sketcher.Constraint("Vertical", 5))
sketch9.addConstraint(Sketcher.Constraint("Horizontal", 6))
sketch9.addConstraint(Sketcher.Constraint("Vertical", 7))
sketch9.addConstraint(Sketcher.Constraint("Horizontal", 3, 2, 4, 2))
sketch9.addConstraint(Sketcher.Constraint("Horizontal", 2, 2, 5, 2))
sketch9.addConstraint(Sketcher.Constraint("Equal", 2, 4))
sketch9.addConstraint(Sketcher.Constraint("DistanceY", 1, 1, 1, 2, 11.0))
sketch9.addConstraint(Sketcher.Constraint("DistanceX", 0, 2, 0, 1, 1.5))
sketch9.addConstraint(Sketcher.Constraint("DistanceX", -1, 1, 0, 2, 30.0))
sketch9.addConstraint(Sketcher.Constraint("DistanceY", -1, 1, 0, 2, 40.0))
sketch9.addConstraint(Sketcher.Constraint("DistanceX", 3, 2, 4, 2, 10.0))
sketch9.setExpression("Constraints[19]", "Params.sketch9_height")
sketch9.setExpression("Constraints[20]", "Params.sketch9_width")
pocket5 = body.newObject("PartDesign::Pocket", "Pocket004")
pocket5.Profile = sketch9
pocket5.Type = "ThroughAll"
pocket5.Reversed = True

doc.recompute()
